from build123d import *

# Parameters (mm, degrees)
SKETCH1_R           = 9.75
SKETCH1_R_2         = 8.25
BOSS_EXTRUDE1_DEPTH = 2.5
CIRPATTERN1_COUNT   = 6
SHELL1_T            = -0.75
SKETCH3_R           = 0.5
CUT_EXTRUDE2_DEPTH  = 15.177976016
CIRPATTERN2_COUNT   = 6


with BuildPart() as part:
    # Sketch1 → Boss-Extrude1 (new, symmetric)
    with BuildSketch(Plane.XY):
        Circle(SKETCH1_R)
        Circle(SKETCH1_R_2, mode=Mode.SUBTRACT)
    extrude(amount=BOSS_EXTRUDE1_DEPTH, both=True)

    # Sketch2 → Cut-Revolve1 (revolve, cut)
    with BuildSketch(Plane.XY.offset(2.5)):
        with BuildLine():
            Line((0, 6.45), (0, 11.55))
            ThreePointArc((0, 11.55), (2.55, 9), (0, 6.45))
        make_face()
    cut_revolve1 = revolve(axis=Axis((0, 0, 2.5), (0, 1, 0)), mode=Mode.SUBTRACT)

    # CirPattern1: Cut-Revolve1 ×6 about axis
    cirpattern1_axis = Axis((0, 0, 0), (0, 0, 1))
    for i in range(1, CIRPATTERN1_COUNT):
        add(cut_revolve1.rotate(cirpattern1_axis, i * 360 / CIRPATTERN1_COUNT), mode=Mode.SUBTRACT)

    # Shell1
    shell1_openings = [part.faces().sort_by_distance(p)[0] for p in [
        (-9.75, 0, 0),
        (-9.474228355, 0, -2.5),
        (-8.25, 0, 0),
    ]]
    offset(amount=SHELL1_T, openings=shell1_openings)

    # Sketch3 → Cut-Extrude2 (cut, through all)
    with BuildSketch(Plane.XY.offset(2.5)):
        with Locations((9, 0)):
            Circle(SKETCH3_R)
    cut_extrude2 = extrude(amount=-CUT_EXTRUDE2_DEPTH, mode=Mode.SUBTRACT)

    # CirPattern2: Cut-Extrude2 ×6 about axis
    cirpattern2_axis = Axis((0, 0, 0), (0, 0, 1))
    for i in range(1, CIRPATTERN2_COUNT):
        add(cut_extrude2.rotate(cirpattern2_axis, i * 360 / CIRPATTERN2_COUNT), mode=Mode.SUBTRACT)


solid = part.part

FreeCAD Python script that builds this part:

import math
import FreeCAD as App
import Part
import Sketcher
from FreeCAD import Vector
Q = App.Units.Quantity


def faces_at(feature, points):
    """Names of the faces that lie closest to the given points."""
    faces = feature.Shape.Faces
    near = lambda p: min(range(len(faces)), key=lambda i: faces[i].distToShape(Part.Vertex(*p))[0])
    return sorted({f"Face{near(p) + 1}" for p in points})

doc = App.newDocument("Part")
body = doc.addObject("PartDesign::Body", "Body")

sketch1 = doc.addObject("Sketcher::SketchObject", "Sketch")
body.addObject(sketch1)
sketch1.AttachmentSupport = (doc.XY_Plane, [""])
sketch1.MapMode = "FlatFace"
sketch1.addGeometry([
    Part.Circle(Vector(0, 0, 0), Vector(0, 0, 1), 9.75),
    Part.Circle(Vector(0, 0, 0), Vector(0, 0, 1), 8.25),
], False)
sketch1.addConstraint([
    Sketcher.Constraint("Coincident", 0, 3, -1, 1),
    Sketcher.Constraint("Coincident", 1, 3, -1, 1),
    Sketcher.Constraint("Diameter", 0, Q("19.5 mm")),
    Sketcher.Constraint("Diameter", 1, Q("16.5 mm")),
])
pad1 = doc.addObject("PartDesign::Pad", "Pad")
body.addObject(pad1)
pad1.Profile = sketch1
pad1.Length = 5
pad1.Midplane = True

sketch2 = doc.addObject("Sketcher::SketchObject", "Sketch001")
body.addObject(sketch2)
sketch2.AttachmentSupport = (doc.XY_Plane, [""])
sketch2.MapMode = "FlatFace"
sketch2.AttachmentOffset = App.Placement(Vector(0, 0, 2.5), App.Rotation())
sketch2.addGeometry([
    Part.LineSegment(Vector(0, 11.55, 0), Vector(0, 6.45, 0)),
    Part.ArcOfCircle(Part.Circle(Vector(0, 9, 0), Vector(0, 0, 1), 2.55), math.radians(-90), math.radians(90)),
], False)
sketch2.addConstraint([
    Sketcher.Constraint("Coincident", 0, 1, 1, 2),
    Sketcher.Constraint("Coincident", 1, 1, 0, 2),
    Sketcher.Constraint("Vertical", 0),
    Sketcher.Constraint("PointOnObject", 1, 3, -2),
    Sketcher.Constraint("PointOnObject", 0, 1, -2),
    Sketcher.Constraint("Radius", 1, Q("2.55 mm")),
    Sketcher.Constraint("DistanceY", -1, 1, 1, 3, Q("9 mm")),
])
groove = doc.addObject("PartDesign::Groove", "Groove")
body.addObject(groove)
groove.Profile = sketch2
groove.ReferenceAxis = (sketch2, ["V_Axis"])
groove.Angle = 360
doc.recompute()

polarpattern = doc.addObject("PartDesign::PolarPattern", "PolarPattern")
body.addObject(polarpattern)
polarpattern.Originals = [groove]
polarpattern.Axis = (doc.Z_Axis, [""])
polarpattern.Angle = 360
polarpattern.Occurrences = 6
body.Tip = polarpattern
doc.recompute()

thickness = doc.addObject("PartDesign::Thickness", "Thickness")
body.addObject(thickness)
thickness.Base = (polarpattern, faces_at(polarpattern, [(-9.75, 0, 0), (-9.165, 0, -2.5), (-8.25, 0, 0)]))
thickness.Value = 0.75
thickness.Reversed = True
thickness.Join = "Arc"

sketch3 = doc.addObject("Sketcher::SketchObject", "Sketch002")
body.addObject(sketch3)
sketch3.AttachmentSupport = (doc.XY_Plane, [""])
sketch3.MapMode = "FlatFace"
sketch3.AttachmentOffset = App.Placement(Vector(0, 0, 2.5), App.Rotation())
sketch3.addGeometry(Part.Circle(Vector(9, 0, 0), Vector(0, 0, 1), 0.5), False)
sketch3.addConstraint([
    Sketcher.Constraint("PointOnObject", 0, 3, -1),
    Sketcher.Constraint("Diameter", 0, Q("1 mm")),
    Sketcher.Constraint("DistanceX", -1, 1, 0, 3, Q("9 mm")),
])
pocket1 = doc.addObject("PartDesign::Pocket", "Pocket")
body.addObject(pocket1)
pocket1.Profile = sketch3
pocket1.Type = "ThroughAll"
doc.recompute()

polarpattern2 = doc.addObject("PartDesign::PolarPattern", "PolarPattern001")
body.addObject(polarpattern2)
polarpattern2.Originals = [pocket1]
polarpattern2.Axis = (doc.Z_Axis, [""])
polarpattern2.Angle = 360
polarpattern2.Occurrences = 6
body.Tip = polarpattern2

doc.recompute()
